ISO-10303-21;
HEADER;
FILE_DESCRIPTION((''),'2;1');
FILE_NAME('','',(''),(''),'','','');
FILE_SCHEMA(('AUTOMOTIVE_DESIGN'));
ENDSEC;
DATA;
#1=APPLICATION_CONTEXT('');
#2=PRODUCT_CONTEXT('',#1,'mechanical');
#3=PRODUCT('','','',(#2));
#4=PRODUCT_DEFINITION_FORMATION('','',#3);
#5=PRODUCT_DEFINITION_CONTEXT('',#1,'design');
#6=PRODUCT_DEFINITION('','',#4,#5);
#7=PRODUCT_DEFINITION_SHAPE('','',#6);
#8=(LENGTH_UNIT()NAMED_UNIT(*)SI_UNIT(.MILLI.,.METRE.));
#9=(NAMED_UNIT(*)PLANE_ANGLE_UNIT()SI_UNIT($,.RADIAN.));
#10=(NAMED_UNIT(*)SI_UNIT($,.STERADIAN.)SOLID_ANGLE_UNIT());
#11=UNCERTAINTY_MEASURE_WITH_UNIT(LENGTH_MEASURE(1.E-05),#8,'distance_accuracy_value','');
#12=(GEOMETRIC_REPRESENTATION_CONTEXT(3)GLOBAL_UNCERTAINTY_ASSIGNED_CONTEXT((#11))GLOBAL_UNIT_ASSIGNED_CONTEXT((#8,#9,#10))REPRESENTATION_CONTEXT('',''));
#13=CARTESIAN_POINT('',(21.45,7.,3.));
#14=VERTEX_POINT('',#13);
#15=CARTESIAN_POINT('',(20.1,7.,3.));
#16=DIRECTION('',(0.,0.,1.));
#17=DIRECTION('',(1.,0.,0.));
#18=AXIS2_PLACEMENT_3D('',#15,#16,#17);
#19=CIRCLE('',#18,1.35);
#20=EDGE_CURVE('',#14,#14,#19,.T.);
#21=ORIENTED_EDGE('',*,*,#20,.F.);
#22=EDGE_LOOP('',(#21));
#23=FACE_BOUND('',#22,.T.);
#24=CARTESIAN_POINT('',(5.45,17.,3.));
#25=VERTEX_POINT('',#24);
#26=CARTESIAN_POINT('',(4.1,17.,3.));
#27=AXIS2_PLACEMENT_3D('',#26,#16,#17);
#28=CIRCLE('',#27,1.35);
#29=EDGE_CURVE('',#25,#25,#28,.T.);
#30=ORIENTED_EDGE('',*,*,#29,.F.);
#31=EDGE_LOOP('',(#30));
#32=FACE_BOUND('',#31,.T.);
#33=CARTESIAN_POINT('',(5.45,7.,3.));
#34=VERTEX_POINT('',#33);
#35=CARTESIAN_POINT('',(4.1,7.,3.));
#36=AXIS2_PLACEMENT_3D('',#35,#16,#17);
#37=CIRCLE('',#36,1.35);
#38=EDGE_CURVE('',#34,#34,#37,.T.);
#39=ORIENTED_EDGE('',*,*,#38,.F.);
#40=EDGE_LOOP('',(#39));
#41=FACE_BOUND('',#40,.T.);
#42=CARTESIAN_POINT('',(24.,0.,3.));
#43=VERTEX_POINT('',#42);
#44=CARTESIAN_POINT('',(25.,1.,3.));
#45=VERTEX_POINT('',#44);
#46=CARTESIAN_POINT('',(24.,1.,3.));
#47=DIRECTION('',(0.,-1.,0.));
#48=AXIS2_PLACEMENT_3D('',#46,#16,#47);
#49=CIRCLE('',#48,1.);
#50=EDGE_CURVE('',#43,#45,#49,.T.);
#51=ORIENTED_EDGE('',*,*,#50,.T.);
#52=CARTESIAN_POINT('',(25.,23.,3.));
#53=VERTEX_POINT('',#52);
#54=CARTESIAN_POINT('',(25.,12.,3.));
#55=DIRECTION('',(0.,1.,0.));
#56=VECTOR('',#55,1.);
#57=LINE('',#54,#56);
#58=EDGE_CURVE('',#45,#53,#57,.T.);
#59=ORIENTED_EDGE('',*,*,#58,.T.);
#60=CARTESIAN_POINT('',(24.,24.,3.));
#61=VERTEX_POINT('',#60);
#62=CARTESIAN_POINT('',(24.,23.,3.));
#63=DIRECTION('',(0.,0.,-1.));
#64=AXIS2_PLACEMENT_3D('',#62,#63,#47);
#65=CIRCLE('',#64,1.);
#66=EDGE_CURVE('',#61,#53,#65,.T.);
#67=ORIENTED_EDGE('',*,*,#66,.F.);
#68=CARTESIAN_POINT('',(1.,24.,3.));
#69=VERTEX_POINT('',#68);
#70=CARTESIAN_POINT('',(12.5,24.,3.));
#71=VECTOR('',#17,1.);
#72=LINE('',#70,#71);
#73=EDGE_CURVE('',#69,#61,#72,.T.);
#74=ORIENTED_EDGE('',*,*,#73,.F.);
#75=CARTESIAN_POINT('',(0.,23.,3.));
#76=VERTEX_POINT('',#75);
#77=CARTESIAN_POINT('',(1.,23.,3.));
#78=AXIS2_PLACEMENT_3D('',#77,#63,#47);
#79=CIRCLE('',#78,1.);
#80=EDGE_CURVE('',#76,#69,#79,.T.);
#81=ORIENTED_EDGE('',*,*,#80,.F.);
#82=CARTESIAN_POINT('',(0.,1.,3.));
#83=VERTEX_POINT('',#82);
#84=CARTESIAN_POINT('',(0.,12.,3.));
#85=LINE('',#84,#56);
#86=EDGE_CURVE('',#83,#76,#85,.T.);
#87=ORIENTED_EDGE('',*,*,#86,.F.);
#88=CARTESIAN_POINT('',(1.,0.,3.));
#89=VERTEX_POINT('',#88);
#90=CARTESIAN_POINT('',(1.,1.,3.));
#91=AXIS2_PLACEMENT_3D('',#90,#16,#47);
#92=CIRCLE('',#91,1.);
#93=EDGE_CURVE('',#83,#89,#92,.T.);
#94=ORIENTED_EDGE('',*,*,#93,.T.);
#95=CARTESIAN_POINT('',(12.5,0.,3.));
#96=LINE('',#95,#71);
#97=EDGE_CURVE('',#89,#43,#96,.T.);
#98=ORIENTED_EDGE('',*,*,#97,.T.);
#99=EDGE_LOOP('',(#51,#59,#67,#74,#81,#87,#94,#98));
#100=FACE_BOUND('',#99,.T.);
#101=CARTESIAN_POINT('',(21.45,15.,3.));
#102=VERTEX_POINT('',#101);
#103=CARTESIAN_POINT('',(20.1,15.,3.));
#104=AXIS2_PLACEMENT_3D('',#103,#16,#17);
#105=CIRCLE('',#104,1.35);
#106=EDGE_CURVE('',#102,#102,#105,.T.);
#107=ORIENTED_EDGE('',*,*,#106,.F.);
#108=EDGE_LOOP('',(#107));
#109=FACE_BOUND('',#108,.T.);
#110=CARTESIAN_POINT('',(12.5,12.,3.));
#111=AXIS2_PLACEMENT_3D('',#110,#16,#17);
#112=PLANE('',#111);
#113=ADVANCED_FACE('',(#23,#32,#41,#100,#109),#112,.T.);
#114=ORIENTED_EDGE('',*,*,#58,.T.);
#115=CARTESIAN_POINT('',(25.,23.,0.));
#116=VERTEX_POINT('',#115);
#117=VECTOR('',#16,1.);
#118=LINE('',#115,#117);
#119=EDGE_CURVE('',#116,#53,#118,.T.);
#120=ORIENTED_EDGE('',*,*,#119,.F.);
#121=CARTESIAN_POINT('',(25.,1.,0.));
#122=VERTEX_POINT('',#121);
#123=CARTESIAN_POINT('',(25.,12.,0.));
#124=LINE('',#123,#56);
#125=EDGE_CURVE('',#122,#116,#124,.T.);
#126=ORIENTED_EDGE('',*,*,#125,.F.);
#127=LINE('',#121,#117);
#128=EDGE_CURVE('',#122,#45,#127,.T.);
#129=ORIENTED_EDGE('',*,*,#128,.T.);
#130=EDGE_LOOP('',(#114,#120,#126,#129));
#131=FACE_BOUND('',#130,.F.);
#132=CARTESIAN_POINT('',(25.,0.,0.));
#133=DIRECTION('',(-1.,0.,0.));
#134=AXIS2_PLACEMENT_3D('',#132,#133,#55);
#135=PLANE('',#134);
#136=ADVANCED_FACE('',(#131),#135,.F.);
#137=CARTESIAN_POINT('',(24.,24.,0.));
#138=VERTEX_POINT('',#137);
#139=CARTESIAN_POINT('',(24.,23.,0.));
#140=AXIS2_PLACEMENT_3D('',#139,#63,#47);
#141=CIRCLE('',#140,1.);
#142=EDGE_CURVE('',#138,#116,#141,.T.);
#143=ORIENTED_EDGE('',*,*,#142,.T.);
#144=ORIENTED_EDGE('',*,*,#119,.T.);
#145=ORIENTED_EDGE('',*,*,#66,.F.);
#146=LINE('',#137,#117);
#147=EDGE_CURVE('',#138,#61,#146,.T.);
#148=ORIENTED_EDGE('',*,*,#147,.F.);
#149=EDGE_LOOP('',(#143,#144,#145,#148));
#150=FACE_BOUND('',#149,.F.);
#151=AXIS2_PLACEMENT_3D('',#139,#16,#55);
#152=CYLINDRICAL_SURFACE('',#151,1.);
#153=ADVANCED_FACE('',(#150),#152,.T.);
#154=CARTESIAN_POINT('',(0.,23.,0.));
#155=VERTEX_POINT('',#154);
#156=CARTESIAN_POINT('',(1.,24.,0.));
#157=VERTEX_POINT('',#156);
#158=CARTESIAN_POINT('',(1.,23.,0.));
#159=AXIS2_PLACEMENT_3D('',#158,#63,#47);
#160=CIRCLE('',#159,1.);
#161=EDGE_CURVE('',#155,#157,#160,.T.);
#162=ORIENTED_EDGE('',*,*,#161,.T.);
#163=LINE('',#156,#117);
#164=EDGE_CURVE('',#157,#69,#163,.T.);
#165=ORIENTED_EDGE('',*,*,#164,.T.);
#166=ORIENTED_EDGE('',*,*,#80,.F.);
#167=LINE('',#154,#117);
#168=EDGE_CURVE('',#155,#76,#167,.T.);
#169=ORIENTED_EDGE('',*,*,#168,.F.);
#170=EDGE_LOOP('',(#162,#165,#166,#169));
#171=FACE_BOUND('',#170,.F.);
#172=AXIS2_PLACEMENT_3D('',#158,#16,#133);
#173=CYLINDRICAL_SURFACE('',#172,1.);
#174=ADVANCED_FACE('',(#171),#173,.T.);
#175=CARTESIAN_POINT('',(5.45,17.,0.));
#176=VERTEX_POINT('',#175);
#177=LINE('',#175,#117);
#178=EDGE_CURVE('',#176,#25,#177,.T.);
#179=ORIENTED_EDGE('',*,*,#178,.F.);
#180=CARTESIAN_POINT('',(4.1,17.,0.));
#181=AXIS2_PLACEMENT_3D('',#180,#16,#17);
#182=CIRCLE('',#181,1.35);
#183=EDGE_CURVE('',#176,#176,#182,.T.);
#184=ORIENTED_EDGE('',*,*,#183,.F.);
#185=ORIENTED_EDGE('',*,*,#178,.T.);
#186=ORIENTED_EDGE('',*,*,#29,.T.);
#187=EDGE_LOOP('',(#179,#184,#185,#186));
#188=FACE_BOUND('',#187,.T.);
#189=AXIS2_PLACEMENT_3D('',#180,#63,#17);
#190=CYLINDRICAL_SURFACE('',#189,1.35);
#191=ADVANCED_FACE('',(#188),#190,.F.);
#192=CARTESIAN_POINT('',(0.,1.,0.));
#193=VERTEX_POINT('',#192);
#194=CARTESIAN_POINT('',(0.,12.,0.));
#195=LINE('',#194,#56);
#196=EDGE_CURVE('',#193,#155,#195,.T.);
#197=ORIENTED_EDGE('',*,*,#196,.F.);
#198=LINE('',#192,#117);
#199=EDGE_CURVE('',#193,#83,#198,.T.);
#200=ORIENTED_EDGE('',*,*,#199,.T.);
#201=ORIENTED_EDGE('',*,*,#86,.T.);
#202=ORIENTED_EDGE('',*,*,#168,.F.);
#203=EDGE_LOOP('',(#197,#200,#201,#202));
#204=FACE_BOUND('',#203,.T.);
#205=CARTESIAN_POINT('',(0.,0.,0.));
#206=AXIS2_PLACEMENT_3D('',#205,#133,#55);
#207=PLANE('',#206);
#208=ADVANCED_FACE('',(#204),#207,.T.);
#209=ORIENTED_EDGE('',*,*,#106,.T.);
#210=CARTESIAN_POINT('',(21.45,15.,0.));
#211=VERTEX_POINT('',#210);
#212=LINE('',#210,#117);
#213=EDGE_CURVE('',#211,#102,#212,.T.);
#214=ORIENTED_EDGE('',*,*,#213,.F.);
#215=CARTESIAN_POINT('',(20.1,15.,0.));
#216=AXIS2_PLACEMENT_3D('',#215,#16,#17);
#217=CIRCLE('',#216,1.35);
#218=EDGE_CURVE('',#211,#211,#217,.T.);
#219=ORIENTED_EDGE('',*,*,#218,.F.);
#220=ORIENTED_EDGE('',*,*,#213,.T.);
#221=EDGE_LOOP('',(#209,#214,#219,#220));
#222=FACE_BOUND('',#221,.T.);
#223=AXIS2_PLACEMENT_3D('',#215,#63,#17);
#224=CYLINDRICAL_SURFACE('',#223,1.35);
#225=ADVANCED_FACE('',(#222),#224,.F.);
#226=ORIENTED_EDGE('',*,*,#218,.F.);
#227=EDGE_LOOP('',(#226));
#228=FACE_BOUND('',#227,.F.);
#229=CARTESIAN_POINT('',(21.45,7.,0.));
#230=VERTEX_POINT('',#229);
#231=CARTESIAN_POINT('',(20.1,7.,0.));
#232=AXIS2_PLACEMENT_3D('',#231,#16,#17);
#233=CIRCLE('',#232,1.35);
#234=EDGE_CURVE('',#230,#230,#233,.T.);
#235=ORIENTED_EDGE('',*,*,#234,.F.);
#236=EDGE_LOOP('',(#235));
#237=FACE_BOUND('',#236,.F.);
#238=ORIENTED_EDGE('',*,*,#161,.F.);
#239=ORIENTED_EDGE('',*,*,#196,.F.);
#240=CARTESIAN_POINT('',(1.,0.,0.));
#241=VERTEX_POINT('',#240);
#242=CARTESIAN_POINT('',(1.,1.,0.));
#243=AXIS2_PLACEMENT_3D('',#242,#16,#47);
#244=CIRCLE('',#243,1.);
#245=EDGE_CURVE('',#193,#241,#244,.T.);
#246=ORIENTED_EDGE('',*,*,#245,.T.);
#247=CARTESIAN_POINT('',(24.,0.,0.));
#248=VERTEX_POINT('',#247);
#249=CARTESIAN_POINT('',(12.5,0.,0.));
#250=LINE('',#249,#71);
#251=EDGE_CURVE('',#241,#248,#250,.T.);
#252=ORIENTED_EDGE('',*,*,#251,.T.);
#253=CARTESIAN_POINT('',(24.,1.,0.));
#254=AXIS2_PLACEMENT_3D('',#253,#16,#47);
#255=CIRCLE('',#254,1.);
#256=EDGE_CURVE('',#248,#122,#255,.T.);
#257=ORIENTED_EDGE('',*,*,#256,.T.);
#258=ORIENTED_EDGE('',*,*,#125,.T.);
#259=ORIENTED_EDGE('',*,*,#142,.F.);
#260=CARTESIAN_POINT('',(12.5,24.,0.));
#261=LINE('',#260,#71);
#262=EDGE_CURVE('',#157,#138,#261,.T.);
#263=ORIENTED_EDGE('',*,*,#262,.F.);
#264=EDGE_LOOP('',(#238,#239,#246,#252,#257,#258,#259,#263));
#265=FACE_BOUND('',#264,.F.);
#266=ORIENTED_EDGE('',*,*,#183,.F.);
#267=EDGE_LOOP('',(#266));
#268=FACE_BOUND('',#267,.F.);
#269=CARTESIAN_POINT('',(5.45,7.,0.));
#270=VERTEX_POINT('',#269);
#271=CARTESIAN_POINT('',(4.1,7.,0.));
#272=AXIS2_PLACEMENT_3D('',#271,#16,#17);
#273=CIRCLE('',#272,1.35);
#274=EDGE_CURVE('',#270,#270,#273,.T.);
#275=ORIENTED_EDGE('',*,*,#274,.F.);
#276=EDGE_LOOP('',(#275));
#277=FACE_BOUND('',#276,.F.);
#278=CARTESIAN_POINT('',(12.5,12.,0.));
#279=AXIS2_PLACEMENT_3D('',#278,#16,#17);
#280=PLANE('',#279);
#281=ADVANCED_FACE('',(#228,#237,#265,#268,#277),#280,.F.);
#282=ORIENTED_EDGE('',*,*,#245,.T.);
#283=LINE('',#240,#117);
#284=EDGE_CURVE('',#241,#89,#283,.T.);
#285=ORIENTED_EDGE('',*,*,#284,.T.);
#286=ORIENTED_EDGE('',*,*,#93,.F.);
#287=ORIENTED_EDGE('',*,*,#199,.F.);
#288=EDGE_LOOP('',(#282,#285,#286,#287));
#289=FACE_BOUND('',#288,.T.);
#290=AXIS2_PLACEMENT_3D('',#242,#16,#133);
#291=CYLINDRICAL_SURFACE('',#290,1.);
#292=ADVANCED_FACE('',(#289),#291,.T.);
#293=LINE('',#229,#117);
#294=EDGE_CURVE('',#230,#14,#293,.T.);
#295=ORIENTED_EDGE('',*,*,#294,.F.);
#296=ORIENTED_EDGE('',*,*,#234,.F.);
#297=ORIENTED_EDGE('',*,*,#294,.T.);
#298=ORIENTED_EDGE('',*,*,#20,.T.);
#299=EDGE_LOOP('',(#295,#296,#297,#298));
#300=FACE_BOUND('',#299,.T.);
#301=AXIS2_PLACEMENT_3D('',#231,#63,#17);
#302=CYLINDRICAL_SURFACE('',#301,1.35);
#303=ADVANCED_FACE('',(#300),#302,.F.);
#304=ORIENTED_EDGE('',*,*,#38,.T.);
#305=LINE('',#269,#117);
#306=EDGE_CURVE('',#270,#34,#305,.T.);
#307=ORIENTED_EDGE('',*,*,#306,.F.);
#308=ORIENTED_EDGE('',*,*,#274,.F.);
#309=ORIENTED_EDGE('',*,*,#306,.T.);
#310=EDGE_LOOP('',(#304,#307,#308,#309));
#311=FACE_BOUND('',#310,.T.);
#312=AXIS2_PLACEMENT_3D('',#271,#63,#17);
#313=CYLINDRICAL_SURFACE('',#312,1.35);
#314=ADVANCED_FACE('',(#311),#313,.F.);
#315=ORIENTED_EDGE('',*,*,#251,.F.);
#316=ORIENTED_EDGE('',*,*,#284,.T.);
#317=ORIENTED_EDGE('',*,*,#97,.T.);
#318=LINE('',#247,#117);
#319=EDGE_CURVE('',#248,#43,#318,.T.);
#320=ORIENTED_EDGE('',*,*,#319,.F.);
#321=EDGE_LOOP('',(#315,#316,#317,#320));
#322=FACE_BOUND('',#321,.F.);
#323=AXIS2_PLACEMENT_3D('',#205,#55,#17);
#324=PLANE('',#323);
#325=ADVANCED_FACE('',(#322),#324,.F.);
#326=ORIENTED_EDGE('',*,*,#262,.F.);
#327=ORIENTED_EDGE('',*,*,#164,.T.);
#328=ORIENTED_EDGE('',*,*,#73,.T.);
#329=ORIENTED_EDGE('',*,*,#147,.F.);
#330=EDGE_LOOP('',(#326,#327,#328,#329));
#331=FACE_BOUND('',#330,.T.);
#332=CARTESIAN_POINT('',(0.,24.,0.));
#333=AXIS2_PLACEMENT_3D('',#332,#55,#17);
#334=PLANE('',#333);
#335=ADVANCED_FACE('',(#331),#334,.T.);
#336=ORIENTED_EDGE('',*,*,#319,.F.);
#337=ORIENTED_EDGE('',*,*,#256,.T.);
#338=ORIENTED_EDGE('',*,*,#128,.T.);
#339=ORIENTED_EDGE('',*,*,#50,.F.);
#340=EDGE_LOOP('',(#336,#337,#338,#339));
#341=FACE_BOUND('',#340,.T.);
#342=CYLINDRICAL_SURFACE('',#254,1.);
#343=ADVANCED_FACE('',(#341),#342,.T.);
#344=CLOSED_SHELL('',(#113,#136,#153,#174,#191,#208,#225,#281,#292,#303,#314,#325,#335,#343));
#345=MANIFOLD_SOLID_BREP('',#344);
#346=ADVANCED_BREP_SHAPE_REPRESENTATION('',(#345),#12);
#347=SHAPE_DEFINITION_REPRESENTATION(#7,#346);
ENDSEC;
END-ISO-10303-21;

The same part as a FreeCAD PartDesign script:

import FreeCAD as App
import Part
import Sketcher


def edges_at(feature, points):
    """Names of the edges that pass closest to the given points."""
    edges = feature.Shape.Edges
    near = lambda p: min(range(len(edges)), key=lambda i: edges[i].distToShape(Part.Vertex(*p))[0])
    return sorted({f"Edge{near(p) + 1}" for p in points})

doc = App.newDocument("Part")
body = doc.addObject("PartDesign::Body", "Body")

# Sketch on XY plane
sketch1 = doc.addObject("Sketcher::SketchObject", "Sketch")
body.addObject(sketch1)
sketch1.AttachmentSupport = (doc.XY_Plane, [""])
sketch1.MapMode = "FlatFace"
sketch1.addGeometry([
    Part.LineSegment(App.Vector(0, 24, 0), App.Vector(0, 0, 0)),  # 0
    Part.LineSegment(App.Vector(0, 0, 0), App.Vector(25, 0, 0)),  # 1
    Part.LineSegment(App.Vector(25, 0, 0), App.Vector(25, 24, 0)),  # 2
    Part.LineSegment(App.Vector(25, 24, 0), App.Vector(0, 24, 0)),  # 3
    Part.Circle(App.Vector(4.1, 7, 0), App.Vector(0, 0, 1), 1.4),  # 4
    Part.Circle(App.Vector(20.1, 7, 0), App.Vector(0, 0, 1), 1.4),  # 5
    Part.Circle(App.Vector(4.1, 17, 0), App.Vector(0, 0, 1), 1.4),  # 6
    Part.Circle(App.Vector(20.1, 15, 0), App.Vector(0, 0, 1), 1.4),  # 7
], False)
sketch1.addConstraint([
    Sketcher.Constraint("Coincident", 0, 2, 1, 1),
    Sketcher.Constraint("Coincident", 1, 2, 2, 1),
    Sketcher.Constraint("Coincident", 2, 2, 3, 1),
    Sketcher.Constraint("Coincident", 3, 2, 0, 1),
    Sketcher.Constraint("Vertical", 0),
    Sketcher.Constraint("Horizontal", 1),
    Sketcher.Constraint("Vertical", 2),
    Sketcher.Constraint("Horizontal", 3),
    Sketcher.Constraint("Coincident", 0, 2, -1, 1),
    Sketcher.Constraint("Equal", 4, 5),
    Sketcher.Constraint("Equal", 5, 6),
    Sketcher.Constraint("Equal", 6, 7),
    Sketcher.Constraint("Horizontal", 4, 3, 5, 3),
    Sketcher.Constraint("Vertical", 4, 3, 6, 3),
    Sketcher.Constraint("Vertical", 5, 3, 7, 3),
    Sketcher.Constraint("Diameter", 4, 2.7),
    Sketcher.Constraint("DistanceX", 1, 1, 1, 2, 25.0),
    Sketcher.Constraint("DistanceY", 0, 2, 0, 1, 24.0),
    Sketcher.Constraint("DistanceY", -1, 1, 4, 3, 7.0),
    Sketcher.Constraint("DistanceY", -1, 1, 6, 3, 17.0),
    Sketcher.Constraint("DistanceY", -1, 1, 7, 3, 15.0),
    Sketcher.Constraint("DistanceX", 4, 3, 5, 3, 16.0),
    Sketcher.Constraint("DistanceX", -1, 1, 4, 3, 4.1),
])
pad1 = doc.addObject("PartDesign::Pad", "Pad")
body.addObject(pad1)
pad1.Profile = sketch1
pad1.Length = 3
doc.recompute()

fillet = doc.addObject("PartDesign::Fillet", "Fillet")
body.addObject(fillet)
fillet.Base = (pad1, edges_at(pad1, [
    (0, 0, 1.5),
    (25, 0, 1.5),
    (25, 24, 1.5),
    (0, 24, 1.5),
]))
fillet.Radius = 1

doc.recompute()
